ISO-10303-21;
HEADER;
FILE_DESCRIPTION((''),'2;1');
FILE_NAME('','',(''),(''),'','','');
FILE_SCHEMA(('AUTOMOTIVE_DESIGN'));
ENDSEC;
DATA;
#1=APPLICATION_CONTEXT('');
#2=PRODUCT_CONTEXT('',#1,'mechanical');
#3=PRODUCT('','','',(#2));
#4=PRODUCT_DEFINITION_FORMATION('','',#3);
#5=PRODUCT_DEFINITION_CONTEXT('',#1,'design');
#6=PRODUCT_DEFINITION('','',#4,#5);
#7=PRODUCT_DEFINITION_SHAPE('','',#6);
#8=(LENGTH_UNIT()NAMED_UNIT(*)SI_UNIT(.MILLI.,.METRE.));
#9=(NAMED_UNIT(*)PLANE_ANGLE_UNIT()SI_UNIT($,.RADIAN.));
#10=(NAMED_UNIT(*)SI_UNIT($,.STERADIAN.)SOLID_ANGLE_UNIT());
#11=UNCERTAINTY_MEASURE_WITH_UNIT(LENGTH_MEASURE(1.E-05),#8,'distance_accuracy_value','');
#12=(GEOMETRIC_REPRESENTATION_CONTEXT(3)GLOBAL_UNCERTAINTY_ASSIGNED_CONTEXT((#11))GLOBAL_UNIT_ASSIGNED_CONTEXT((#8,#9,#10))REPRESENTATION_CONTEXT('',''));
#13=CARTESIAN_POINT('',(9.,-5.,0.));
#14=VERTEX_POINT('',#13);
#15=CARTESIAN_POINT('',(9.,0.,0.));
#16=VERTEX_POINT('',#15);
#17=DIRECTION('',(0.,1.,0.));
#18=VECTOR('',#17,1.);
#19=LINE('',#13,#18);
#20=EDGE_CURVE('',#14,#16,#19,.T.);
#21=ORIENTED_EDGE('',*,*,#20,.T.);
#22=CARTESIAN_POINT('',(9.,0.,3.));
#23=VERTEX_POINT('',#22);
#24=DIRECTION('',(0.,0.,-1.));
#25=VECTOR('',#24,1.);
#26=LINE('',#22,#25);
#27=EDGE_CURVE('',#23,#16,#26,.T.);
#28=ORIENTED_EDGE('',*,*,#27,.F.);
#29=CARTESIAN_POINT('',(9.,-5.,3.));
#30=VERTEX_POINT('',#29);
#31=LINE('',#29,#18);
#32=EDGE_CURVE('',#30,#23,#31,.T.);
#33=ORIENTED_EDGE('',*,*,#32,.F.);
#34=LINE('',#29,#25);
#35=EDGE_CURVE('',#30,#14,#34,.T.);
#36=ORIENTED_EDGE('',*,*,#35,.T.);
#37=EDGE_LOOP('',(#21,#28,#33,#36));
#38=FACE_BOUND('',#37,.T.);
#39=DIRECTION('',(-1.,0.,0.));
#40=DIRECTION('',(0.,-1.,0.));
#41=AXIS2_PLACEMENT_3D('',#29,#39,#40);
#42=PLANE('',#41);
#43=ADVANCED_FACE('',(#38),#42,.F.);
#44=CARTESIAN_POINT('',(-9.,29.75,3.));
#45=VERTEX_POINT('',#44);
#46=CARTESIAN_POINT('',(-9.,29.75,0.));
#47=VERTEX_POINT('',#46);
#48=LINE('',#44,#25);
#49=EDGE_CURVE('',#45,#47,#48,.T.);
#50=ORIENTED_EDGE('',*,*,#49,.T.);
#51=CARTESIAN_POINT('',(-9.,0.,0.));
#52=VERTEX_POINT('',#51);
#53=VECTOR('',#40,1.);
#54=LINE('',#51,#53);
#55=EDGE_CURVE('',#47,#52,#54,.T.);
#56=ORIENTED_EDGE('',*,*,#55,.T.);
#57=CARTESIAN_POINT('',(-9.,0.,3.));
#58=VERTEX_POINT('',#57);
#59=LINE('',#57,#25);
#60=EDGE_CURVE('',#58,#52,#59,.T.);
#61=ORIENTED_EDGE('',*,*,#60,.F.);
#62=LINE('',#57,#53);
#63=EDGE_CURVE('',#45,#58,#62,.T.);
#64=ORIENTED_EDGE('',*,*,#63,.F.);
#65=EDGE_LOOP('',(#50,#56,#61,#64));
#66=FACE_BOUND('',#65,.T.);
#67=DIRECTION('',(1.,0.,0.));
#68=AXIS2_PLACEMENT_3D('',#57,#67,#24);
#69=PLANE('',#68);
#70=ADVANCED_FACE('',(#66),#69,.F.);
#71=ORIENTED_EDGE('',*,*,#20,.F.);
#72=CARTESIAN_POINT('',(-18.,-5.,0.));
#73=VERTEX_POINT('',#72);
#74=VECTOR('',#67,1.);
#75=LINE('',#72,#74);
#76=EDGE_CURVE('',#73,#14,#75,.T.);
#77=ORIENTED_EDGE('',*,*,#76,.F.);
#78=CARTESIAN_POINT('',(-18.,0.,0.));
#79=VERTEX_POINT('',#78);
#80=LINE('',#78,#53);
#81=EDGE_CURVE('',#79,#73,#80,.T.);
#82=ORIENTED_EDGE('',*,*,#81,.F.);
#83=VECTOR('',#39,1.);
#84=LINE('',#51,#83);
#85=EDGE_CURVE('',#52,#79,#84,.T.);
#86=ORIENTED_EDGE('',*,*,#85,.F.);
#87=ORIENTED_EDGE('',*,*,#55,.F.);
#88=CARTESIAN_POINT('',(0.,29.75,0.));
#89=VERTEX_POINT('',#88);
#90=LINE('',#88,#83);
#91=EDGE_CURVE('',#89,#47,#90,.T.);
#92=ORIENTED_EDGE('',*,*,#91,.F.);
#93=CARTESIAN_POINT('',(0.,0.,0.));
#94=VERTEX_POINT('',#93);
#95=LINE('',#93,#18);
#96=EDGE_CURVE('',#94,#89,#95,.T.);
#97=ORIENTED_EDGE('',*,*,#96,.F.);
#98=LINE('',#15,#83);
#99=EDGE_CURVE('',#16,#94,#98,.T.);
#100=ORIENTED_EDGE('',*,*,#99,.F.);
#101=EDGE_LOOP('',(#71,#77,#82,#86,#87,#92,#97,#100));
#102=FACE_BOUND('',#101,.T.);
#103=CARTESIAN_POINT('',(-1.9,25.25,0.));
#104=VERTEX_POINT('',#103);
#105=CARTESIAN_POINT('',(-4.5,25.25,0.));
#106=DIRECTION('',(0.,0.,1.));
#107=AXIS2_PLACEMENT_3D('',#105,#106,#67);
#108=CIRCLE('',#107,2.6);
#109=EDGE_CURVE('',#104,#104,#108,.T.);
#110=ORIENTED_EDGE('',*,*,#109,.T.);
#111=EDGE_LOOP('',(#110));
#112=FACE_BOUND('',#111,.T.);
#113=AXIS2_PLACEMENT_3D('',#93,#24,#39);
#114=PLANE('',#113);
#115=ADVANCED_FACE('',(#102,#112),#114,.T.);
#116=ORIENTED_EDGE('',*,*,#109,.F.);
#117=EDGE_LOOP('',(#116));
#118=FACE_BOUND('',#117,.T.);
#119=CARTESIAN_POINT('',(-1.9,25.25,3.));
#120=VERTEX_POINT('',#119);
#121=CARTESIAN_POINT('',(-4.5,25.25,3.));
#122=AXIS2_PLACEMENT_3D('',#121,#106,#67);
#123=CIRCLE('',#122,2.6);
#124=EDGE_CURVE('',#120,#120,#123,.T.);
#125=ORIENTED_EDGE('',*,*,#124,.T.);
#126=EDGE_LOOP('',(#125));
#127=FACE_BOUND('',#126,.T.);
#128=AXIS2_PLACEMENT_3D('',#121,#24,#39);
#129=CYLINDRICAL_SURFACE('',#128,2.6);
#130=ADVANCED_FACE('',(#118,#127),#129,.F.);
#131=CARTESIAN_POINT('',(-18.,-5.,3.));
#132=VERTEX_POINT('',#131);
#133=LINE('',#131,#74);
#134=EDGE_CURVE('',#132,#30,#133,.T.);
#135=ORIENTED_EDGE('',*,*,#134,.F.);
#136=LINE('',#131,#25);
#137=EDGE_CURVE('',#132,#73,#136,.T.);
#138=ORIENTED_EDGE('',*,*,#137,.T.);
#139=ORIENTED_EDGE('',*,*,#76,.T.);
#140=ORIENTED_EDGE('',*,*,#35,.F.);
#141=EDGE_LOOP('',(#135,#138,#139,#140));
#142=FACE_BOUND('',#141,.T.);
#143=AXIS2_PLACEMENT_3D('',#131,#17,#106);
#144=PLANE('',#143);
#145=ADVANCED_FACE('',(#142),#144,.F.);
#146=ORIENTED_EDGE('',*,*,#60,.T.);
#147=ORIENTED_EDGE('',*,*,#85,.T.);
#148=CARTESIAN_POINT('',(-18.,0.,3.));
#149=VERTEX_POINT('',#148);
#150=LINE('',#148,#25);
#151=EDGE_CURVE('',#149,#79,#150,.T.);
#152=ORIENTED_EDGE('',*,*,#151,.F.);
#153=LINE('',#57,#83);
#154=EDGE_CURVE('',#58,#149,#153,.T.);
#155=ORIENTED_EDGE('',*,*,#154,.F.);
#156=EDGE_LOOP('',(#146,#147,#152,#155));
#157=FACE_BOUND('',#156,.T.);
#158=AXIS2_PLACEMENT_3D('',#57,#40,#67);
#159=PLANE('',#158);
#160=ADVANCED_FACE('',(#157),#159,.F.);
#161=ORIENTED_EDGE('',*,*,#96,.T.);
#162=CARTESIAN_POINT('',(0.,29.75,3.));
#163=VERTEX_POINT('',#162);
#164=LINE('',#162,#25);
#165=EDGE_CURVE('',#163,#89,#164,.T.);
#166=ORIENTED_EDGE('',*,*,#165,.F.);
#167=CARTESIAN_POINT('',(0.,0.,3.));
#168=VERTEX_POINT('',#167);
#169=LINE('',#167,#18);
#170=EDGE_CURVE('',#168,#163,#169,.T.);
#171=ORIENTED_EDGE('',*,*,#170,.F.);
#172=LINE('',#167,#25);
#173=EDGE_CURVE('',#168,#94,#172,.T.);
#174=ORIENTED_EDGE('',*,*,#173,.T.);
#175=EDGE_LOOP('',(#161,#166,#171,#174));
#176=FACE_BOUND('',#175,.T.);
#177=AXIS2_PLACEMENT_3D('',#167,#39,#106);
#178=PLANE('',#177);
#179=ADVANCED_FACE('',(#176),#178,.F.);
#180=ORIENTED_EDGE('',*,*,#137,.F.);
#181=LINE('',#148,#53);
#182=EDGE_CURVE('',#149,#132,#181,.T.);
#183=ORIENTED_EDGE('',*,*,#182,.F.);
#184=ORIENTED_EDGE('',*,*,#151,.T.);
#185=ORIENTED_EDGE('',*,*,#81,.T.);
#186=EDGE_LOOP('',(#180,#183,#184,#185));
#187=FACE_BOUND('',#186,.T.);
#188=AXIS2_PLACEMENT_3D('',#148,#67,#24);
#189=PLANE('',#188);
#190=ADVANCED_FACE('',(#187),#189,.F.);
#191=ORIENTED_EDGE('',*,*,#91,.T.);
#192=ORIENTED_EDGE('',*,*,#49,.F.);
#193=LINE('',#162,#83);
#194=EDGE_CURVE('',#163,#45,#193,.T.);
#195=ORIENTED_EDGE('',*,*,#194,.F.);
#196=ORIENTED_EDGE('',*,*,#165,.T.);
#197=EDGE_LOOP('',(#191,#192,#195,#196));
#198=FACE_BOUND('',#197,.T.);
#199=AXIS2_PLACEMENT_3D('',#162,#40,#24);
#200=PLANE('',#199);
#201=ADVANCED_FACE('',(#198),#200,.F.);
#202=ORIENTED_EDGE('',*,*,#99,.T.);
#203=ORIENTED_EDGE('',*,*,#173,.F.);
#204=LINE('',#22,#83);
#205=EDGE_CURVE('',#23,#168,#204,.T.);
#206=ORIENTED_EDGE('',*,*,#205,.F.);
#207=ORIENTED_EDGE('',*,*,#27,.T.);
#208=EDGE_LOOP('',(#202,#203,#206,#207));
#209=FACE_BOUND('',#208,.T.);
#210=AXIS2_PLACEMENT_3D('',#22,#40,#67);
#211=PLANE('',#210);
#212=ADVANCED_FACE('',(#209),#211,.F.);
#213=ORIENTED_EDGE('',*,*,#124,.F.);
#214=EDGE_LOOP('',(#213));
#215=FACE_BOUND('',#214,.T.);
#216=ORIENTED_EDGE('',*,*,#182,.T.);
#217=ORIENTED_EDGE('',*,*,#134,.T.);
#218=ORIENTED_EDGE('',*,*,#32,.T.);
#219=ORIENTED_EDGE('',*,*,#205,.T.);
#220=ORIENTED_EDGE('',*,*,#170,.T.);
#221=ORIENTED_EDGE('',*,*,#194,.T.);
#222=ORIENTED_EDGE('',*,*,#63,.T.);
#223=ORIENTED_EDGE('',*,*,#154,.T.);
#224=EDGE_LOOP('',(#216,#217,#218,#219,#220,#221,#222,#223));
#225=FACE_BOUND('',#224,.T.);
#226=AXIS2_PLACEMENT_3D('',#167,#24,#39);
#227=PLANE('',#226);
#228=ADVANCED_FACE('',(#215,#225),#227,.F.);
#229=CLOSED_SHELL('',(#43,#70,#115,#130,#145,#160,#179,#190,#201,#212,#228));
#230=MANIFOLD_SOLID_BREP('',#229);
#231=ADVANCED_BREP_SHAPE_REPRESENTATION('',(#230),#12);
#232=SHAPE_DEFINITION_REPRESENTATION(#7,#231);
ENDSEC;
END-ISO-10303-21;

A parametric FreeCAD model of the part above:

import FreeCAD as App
import Part
import Sketcher

V = App.Vector


def add_polygon(sketch, points):
    """Adds a closed chain of lines whose ends are joined by coincident constraints."""
    first, n = sketch.GeometryCount, len(points)
    for a, b in zip(points, points[1:] + points[:1]):
        sketch.addGeometry(Part.LineSegment(App.Vector(*a, 0), App.Vector(*b, 0)), False)
    for i in range(n):
        sketch.addConstraint(Sketcher.Constraint("Coincident", first + i, 2, first + (i + 1) % n, 1))

doc = App.newDocument("Part")
body = doc.addObject("PartDesign::Body", "Body")

sketch1 = body.newObject("Sketcher::SketchObject", "Sketch")
sketch1.AttachmentSupport = (doc.getObject("XY_Plane"), [""])
sketch1.MapMode = "FlatFace"
add_polygon(sketch1, [(-9, 0), (-18, 0), (-18, -5), (9, -5), (9, 0), (0, 0), (0, 29.8), (-9, 29.8)])
sketch1.addGeometry(Part.Circle(V(-4.5, 25.2, 0), V(0, 0, 1), 2.6), False)
sketch1.addConstraint([
    Sketcher.Constraint("Horizontal", 0),
    Sketcher.Constraint("Vertical", 1),
    Sketcher.Constraint("Horizontal", 2),
    Sketcher.Constraint("Vertical", 3),
    Sketcher.Constraint("Horizontal", 4),
    Sketcher.Constraint("Vertical", 5),
    Sketcher.Constraint("Horizontal", 6),
    Sketcher.Constraint("Vertical", 7),
    Sketcher.Constraint("Coincident", 4, 2, -1, 1),
    Sketcher.Constraint("Symmetric", 3, 2, 7, 2, -1, 1),
    Sketcher.Constraint("Equal", 0, 4),
    Sketcher.Constraint("Diameter", 8, 5.2),
    Sketcher.Constraint("DistanceX", 0, 2, 0, 1, 9.0),
    Sketcher.Constraint("DistanceY", 1, 2, 1, 1, 5.0),
    Sketcher.Constraint("DistanceY", 5, 1, 5, 2, 29.75),
    Sketcher.Constraint("DistanceX", 8, 3, -1, 1, 4.5),
    Sketcher.Constraint("DistanceY", 8, 3, 5, 2, 4.5),
])
pad1 = body.newObject("PartDesign::Pad", "Pad")
pad1.Profile = sketch1
pad1.Length = 3

doc.recompute()
